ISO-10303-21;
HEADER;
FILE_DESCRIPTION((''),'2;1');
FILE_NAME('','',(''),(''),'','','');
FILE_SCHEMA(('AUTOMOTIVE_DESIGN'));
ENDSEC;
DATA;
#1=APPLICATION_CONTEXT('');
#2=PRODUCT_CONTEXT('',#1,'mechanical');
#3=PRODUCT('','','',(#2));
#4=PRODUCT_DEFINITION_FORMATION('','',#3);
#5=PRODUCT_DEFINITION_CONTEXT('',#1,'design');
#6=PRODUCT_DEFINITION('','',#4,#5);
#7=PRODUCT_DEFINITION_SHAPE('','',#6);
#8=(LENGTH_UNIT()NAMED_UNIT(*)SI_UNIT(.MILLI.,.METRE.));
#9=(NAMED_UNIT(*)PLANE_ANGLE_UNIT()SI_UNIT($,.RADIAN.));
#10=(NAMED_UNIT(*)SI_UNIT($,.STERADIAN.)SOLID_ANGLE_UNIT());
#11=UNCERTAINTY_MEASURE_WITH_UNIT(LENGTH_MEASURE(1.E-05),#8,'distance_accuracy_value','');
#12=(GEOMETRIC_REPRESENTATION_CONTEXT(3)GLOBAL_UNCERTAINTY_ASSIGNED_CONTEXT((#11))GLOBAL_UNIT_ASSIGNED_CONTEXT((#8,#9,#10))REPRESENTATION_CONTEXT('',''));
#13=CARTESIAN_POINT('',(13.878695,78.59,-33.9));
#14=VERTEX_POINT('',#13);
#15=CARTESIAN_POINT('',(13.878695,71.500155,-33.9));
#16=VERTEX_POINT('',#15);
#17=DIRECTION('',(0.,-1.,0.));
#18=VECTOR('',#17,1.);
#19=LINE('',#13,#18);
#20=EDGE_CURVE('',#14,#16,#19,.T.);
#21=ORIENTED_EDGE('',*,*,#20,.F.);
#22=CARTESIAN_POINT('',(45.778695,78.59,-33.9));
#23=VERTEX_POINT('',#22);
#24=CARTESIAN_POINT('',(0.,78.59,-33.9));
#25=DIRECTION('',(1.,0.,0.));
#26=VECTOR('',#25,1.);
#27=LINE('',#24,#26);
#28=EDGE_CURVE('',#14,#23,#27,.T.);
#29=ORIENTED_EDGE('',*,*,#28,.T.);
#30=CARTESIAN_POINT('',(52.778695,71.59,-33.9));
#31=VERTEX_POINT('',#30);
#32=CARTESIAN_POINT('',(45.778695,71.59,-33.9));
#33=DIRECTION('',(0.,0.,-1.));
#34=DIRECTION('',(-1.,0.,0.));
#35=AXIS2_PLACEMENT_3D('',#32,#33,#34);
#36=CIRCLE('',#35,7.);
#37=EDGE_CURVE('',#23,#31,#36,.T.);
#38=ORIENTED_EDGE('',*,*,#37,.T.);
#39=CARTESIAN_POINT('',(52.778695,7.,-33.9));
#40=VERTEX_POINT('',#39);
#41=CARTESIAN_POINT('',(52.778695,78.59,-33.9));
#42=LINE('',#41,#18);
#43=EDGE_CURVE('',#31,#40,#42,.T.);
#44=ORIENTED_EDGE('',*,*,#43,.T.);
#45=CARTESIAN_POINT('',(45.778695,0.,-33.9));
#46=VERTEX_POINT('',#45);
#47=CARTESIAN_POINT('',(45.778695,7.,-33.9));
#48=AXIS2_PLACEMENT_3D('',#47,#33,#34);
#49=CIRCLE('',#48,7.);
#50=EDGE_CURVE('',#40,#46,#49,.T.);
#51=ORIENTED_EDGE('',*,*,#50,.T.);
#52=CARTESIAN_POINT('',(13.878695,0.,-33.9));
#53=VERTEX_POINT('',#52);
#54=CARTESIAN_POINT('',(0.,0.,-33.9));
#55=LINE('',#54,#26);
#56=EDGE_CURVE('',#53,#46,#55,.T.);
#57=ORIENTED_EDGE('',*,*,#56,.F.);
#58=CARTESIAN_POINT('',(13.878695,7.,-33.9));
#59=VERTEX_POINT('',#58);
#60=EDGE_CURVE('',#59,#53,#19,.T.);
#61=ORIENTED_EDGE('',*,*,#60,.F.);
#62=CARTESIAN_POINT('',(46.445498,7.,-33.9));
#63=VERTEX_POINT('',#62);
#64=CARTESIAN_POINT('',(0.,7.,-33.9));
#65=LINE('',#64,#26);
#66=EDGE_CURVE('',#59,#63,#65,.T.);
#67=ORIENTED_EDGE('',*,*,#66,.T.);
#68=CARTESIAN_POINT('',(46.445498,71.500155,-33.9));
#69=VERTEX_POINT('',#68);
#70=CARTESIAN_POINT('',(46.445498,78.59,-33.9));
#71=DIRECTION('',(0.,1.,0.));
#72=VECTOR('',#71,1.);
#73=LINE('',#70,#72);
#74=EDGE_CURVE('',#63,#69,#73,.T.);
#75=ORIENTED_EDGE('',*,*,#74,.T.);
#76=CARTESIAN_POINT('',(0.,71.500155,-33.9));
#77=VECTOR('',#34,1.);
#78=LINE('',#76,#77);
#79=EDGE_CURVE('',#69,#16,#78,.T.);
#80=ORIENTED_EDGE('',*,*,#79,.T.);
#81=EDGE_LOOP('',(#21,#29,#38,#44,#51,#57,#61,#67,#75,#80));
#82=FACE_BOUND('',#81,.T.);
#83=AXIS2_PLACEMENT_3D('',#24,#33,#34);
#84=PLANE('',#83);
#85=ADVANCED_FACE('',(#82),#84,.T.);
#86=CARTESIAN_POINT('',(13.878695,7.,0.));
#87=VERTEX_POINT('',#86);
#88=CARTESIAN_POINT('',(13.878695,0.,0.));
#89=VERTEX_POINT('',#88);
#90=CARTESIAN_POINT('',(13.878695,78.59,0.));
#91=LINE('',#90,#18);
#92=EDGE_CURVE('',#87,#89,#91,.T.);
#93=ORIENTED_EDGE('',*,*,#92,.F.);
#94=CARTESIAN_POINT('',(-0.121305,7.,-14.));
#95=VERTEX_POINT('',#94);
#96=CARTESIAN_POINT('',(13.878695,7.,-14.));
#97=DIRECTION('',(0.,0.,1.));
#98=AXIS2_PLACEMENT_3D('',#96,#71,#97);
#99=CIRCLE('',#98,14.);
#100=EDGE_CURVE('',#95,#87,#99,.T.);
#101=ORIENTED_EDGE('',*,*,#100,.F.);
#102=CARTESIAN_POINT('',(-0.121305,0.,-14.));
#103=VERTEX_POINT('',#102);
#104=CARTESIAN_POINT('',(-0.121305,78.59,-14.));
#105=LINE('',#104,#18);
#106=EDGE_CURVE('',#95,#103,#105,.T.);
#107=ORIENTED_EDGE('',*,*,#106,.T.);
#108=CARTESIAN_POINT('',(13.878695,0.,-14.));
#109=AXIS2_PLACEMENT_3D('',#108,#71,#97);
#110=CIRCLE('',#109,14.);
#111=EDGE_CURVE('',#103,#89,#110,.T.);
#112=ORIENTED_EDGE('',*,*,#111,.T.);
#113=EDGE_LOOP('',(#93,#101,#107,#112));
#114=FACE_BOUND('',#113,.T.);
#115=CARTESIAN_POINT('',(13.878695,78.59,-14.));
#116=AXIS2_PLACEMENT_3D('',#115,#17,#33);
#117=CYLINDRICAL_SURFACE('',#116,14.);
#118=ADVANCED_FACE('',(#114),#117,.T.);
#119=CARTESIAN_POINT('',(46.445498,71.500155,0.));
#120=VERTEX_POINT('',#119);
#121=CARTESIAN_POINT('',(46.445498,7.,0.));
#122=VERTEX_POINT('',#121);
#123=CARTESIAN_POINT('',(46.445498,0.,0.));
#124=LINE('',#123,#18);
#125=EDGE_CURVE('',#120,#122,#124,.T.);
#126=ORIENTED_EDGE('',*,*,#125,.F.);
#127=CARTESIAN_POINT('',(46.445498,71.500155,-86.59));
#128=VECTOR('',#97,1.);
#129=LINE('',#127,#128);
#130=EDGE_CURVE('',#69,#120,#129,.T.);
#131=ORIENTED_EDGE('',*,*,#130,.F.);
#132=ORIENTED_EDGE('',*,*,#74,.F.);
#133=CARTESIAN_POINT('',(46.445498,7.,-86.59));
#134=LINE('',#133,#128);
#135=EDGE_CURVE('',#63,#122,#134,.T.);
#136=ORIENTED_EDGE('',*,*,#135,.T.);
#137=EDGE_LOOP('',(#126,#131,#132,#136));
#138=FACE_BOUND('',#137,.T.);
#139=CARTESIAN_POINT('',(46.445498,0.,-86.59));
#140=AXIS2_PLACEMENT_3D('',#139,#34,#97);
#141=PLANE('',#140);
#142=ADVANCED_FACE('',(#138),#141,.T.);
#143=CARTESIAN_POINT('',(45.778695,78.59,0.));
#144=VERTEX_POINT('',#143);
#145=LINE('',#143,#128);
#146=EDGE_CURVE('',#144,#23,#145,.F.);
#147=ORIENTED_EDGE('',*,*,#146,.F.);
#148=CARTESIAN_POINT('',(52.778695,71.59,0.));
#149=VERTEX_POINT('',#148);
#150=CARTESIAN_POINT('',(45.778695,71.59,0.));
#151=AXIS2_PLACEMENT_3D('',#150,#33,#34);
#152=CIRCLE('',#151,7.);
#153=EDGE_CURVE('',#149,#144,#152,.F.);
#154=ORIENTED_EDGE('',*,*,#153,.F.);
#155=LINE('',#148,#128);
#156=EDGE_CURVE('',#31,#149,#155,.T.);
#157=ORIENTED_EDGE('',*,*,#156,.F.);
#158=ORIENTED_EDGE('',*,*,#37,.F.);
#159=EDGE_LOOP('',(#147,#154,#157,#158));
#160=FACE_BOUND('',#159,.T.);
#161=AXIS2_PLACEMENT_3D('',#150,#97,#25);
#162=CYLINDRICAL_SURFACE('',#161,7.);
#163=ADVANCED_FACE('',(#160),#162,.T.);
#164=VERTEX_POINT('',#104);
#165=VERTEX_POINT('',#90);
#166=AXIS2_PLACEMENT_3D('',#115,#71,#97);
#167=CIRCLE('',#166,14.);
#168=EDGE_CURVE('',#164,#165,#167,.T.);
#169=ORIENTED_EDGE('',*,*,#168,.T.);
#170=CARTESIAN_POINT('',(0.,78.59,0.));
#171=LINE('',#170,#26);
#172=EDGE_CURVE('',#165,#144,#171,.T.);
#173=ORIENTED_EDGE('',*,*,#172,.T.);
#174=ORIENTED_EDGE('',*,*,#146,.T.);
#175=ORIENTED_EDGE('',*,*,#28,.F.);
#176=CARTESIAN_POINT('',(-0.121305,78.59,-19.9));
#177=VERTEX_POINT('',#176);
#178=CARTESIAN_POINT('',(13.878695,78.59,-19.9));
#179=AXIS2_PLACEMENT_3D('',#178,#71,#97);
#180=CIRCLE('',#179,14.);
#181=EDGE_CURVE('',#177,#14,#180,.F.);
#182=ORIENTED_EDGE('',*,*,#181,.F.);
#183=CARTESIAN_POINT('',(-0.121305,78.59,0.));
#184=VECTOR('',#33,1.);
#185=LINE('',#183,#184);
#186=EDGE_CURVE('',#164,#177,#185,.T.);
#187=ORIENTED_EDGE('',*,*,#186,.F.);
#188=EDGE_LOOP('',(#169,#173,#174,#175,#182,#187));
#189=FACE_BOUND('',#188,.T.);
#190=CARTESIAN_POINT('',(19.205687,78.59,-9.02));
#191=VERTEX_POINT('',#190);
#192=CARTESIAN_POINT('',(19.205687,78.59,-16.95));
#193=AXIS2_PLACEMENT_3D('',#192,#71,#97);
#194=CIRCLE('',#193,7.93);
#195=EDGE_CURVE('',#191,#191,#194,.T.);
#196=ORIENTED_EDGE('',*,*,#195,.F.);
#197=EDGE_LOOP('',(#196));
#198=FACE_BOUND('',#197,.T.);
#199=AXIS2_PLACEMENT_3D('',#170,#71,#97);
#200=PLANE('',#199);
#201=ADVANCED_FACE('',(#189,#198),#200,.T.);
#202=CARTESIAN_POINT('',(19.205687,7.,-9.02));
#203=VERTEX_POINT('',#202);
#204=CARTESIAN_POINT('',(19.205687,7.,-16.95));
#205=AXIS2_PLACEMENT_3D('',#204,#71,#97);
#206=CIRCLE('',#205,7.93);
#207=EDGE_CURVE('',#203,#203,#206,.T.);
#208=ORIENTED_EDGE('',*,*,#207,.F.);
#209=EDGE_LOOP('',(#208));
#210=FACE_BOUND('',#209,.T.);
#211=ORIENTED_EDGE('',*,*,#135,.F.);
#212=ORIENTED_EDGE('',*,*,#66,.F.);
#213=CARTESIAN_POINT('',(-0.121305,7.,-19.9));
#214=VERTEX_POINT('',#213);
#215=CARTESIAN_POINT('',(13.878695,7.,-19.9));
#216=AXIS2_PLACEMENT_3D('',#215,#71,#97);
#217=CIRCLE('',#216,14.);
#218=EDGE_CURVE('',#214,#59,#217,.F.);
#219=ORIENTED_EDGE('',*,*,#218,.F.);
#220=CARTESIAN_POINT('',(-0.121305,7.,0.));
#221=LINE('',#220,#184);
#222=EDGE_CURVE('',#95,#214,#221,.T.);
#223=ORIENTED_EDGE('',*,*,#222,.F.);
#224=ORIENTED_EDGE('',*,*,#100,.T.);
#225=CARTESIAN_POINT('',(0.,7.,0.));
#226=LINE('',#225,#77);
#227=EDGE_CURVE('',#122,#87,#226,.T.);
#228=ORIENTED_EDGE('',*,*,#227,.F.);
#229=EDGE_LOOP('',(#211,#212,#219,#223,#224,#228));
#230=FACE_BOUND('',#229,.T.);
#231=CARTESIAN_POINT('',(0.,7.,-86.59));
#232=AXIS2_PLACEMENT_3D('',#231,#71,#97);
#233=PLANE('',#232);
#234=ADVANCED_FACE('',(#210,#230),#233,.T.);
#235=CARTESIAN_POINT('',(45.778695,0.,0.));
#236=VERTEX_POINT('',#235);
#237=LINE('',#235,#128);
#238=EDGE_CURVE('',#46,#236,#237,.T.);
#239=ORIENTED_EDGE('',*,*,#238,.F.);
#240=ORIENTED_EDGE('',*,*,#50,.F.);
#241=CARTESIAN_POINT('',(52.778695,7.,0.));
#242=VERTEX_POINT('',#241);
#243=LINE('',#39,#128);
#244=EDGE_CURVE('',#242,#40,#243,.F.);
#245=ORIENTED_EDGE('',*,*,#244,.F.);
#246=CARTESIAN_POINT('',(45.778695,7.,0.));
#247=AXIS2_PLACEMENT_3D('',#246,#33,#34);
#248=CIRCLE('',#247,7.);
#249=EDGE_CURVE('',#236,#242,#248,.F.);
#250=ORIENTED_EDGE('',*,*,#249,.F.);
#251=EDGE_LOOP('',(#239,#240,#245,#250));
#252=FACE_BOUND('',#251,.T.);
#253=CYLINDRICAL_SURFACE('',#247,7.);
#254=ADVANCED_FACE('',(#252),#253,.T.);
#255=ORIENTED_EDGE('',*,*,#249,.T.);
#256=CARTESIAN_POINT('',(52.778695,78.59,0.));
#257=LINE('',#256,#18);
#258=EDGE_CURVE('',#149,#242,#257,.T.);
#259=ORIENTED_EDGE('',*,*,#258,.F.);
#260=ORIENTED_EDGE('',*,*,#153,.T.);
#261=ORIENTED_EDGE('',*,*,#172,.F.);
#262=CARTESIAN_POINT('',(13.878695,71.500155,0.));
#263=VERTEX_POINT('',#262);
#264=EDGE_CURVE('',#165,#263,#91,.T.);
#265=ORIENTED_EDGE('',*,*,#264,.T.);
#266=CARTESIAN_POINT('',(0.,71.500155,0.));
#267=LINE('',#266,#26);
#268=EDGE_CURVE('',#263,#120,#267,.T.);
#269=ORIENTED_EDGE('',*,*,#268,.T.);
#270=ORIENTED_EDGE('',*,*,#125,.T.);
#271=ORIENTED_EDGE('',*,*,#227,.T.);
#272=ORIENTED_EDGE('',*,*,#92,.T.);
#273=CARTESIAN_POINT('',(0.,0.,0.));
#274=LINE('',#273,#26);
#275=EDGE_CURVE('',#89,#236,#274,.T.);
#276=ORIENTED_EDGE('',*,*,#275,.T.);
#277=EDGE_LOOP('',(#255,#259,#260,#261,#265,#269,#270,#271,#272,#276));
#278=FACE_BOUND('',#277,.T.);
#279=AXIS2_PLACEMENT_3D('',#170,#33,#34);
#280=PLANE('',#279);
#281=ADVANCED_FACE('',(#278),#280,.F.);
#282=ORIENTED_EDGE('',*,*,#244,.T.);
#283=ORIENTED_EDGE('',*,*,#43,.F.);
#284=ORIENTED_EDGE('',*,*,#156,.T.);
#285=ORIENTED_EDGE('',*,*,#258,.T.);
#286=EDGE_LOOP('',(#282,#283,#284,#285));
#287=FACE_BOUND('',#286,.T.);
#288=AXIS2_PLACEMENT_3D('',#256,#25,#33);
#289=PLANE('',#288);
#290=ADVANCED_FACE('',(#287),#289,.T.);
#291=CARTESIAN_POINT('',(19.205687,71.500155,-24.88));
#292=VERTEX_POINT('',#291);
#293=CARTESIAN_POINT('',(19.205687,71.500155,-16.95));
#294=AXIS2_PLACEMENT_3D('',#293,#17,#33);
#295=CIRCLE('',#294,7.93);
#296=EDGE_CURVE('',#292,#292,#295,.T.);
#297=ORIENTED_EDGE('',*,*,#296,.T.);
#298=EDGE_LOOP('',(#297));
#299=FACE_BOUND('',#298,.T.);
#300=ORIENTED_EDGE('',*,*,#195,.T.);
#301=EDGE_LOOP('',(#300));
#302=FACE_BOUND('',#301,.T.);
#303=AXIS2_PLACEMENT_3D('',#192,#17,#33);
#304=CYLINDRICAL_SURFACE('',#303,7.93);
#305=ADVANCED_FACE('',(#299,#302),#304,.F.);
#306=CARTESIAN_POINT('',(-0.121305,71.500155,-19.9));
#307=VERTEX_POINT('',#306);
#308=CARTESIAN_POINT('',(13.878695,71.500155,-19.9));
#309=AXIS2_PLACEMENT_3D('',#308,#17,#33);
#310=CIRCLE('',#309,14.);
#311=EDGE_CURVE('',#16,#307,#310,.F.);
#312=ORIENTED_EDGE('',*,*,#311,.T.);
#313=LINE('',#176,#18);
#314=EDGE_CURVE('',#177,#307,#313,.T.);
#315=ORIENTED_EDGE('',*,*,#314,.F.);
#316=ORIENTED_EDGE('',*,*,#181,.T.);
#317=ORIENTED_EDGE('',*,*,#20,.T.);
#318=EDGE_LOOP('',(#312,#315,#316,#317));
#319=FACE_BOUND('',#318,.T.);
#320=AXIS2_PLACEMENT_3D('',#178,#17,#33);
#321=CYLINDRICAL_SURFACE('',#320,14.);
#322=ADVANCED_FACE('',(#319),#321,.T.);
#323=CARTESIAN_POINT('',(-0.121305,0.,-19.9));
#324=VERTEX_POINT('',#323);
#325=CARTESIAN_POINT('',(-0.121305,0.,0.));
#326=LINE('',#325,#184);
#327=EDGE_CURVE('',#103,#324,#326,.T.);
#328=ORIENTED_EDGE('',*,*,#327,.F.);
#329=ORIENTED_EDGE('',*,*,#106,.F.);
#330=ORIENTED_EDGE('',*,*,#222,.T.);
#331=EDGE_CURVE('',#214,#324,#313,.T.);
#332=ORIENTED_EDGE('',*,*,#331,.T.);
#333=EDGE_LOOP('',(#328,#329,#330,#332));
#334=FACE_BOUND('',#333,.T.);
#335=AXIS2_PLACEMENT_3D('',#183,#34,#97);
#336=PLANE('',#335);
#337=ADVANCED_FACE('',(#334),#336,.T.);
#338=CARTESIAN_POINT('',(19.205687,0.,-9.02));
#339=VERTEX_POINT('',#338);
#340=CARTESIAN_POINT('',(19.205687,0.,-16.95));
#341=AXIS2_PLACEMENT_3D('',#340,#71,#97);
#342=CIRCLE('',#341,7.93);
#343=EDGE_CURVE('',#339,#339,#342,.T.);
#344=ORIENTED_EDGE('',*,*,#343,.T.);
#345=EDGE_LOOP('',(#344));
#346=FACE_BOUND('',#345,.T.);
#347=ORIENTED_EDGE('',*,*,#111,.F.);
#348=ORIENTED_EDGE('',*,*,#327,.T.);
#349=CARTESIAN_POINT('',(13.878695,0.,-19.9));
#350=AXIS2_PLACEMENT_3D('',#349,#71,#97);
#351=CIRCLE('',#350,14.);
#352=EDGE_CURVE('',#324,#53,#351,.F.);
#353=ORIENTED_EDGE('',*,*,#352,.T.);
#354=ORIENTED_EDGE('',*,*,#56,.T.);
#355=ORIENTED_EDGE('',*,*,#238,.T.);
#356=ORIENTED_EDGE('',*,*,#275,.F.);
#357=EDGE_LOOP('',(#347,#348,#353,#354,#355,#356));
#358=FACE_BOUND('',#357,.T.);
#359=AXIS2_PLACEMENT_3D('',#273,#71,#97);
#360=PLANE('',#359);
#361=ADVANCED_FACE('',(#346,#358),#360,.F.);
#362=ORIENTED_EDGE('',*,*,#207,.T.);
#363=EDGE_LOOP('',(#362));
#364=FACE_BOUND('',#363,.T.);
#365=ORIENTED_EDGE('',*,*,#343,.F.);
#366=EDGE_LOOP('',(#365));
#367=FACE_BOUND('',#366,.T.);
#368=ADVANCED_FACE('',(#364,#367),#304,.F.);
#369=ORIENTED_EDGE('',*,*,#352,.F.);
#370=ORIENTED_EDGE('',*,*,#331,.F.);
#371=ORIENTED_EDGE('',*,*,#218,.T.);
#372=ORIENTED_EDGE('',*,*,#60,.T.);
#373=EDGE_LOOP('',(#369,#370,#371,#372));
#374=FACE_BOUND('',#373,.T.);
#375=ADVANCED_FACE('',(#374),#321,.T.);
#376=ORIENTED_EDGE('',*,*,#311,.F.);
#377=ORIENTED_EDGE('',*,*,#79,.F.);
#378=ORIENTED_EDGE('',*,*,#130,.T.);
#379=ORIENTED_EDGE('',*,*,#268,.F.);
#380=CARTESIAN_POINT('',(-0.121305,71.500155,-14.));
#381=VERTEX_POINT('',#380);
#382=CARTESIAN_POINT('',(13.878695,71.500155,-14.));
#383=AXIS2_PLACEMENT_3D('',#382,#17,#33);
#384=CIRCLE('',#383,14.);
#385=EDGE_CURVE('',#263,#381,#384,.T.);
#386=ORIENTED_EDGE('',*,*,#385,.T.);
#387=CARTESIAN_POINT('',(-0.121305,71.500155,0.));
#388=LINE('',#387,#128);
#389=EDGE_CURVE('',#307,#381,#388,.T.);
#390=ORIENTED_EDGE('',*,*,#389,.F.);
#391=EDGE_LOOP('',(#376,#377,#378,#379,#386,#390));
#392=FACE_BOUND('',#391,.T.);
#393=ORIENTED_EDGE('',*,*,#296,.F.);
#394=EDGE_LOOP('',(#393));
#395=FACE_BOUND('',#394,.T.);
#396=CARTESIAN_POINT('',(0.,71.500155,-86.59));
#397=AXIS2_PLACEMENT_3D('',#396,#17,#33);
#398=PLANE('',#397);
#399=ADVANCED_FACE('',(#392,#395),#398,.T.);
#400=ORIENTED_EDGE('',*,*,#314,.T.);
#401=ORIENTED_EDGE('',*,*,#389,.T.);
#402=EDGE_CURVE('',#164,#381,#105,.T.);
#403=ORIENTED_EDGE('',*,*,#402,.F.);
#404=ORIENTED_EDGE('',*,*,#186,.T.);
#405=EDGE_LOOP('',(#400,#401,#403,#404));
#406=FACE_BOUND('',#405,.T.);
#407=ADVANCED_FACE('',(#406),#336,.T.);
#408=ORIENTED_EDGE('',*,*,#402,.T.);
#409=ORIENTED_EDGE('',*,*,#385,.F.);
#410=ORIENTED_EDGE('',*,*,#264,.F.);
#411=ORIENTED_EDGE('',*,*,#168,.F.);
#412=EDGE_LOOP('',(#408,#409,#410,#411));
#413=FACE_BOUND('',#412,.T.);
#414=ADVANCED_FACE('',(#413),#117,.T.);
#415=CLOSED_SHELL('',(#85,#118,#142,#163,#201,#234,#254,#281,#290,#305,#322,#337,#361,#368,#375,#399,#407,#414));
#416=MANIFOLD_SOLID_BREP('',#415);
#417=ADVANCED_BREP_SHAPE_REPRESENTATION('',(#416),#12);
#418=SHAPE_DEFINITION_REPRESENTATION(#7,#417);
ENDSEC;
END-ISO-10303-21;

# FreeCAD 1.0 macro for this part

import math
import FreeCAD as App
import Part
import Sketcher


def edges_at(feature, points):
    """Names of the edges that pass closest to the given points."""
    edges = feature.Shape.Edges
    near = lambda p: min(range(len(edges)), key=lambda i: edges[i].distToShape(Part.Vertex(*p))[0])
    return sorted({f"Edge{near(p) + 1}" for p in points})


def add_polygon(sketch, points):
    """Adds a closed chain of lines whose ends are joined by coincident constraints."""
    first, n = sketch.GeometryCount, len(points)
    for a, b in zip(points, points[1:] + points[:1]):
        sketch.addGeometry(Part.LineSegment(App.Vector(*a, 0), App.Vector(*b, 0)), False)
    for i in range(n):
        sketch.addConstraint(Sketcher.Constraint("Coincident", first + i, 2, first + (i + 1) % n, 1))

doc = App.newDocument("Part")
body = doc.addObject("PartDesign::Body", "Body")

# Sketch on XZ plane
sketch1 = doc.addObject("Sketcher::SketchObject", "Sketch")
body.addObject(sketch1)
sketch1.AttachmentSupport = (doc.XZ_Plane, [""])
sketch1.MapMode = "FlatFace"
sketch1.addGeometry([
    Part.LineSegment(App.Vector(-0.121305, -19.9, 0), App.Vector(-0.121305, -14, 0)),  # 0
    Part.ArcOfCircle(Part.Circle(App.Vector(13.878695, -14, 0), App.Vector(0, 0, 1), 14), math.radians(90), math.radians(180)),  # 1
    Part.LineSegment(App.Vector(13.878695, 0, 0), App.Vector(52.778695, 0, 0)),  # 2
    Part.LineSegment(App.Vector(52.778695, 0, 0), App.Vector(52.778695, -33.9, 0)),  # 3
    Part.LineSegment(App.Vector(52.778695, -33.9, 0), App.Vector(13.878695, -33.9, 0)),  # 4
    Part.ArcOfCircle(Part.Circle(App.Vector(13.878695, -19.9, 0), App.Vector(0, 0, 1), 14), math.radians(180), math.radians(270)),  # 5
    Part.Circle(App.Vector(19.205687, -16.95, 0), App.Vector(0, 0, 1), 7.93),  # 6
], False)
sketch1.addConstraint([
    Sketcher.Constraint("Tangent", 0, 2, 1, 2),
    Sketcher.Constraint("Tangent", 1, 1, 2, 1),
    Sketcher.Constraint("Coincident", 2, 2, 3, 1),
    Sketcher.Constraint("Coincident", 3, 2, 4, 1),
    Sketcher.Constraint("Tangent", 4, 2, 5, 2),
    Sketcher.Constraint("Tangent", 5, 1, 0, 1),
    Sketcher.Constraint("Vertical", 0),
    Sketcher.Constraint("Horizontal", 2),
    Sketcher.Constraint("Vertical", 3),
    Sketcher.Constraint("Horizontal", 4),
    Sketcher.Constraint("Equal", 1, 5),
    Sketcher.Constraint("PointOnObject", 1, 1, -1),
    Sketcher.Constraint("Radius", 1, 14.0),
    Sketcher.Constraint("Diameter", 6, 15.86),
    Sketcher.Constraint("DistanceX", 2, 1, 2, 2, 38.9),
    Sketcher.Constraint("DistanceY", 0, 1, 0, 2, 5.9),
    Sketcher.Constraint("DistanceY", 6, 3, -1, 1, 16.95),
    Sketcher.Constraint("DistanceX", -1, 1, 1, 3, 13.878695),
    Sketcher.Constraint("DistanceX", -1, 1, 6, 3, 19.205687),
])
pad1 = doc.addObject("PartDesign::Pad", "Pad")
body.addObject(pad1)
pad1.Profile = sketch1
pad1.Length = 78.59
pad1.Reversed = True
doc.recompute()

fillet = doc.addObject("PartDesign::Fillet", "Fillet")
body.addObject(fillet)
fillet.Base = (pad1, edges_at(pad1, [(52.779, 78.59, -16.95)]))
fillet.Radius = 7

# Sketch on XY plane
sketch2 = doc.addObject("Sketcher::SketchObject", "Sketch001")
body.addObject(sketch2)
sketch2.AttachmentSupport = (doc.XY_Plane, [""])
sketch2.MapMode = "FlatFace"
add_polygon(sketch2, [(46.445498, 7), (46.445498, 71.500155), (-13.306366, 71.500155), (-13.306366, 7)])  # lines 0-3
sketch2.addConstraint([
    Sketcher.Constraint("Vertical", 0),
    Sketcher.Constraint("Horizontal", 1),
    Sketcher.Constraint("Vertical", 2),
    Sketcher.Constraint("Horizontal", 3),
    Sketcher.Constraint("DistanceY", -1, 1, 2, 2, 7.0),
    Sketcher.Constraint("DistanceX", -1, 1, 0, 2, 46.445498),
    Sketcher.Constraint("DistanceX", 1, 2, 1, 1, 59.751864),
    Sketcher.Constraint("DistanceY", 0, 1, 0, 2, 64.500155),
])
pocket1 = doc.addObject("PartDesign::Pocket", "Pocket")
body.addObject(pocket1)
pocket1.Profile = sketch2
pocket1.Length = 86.59
doc.recompute()

fillet2 = doc.addObject("PartDesign::Fillet", "Fillet001")
body.addObject(fillet2)
fillet2.Base = (pocket1, edges_at(pocket1, [(52.779, 0, -16.95)]))
fillet2.Radius = 7

doc.recompute()
